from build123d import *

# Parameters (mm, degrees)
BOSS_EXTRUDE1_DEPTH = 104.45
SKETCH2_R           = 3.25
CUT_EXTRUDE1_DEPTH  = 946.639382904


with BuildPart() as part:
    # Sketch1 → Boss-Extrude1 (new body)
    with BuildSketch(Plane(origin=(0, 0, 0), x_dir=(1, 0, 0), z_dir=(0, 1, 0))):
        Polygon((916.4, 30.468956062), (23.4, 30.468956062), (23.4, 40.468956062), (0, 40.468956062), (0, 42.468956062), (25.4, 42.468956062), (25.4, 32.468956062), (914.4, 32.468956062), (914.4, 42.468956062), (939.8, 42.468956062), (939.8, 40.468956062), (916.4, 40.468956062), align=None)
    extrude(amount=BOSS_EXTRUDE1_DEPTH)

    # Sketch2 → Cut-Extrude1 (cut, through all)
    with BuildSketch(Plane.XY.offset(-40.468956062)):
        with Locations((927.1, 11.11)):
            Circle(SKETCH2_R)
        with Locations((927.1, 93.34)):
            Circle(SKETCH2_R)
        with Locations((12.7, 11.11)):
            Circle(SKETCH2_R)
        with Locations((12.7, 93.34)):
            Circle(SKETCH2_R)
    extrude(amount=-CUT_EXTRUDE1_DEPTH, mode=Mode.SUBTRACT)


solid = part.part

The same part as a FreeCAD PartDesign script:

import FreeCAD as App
import Part
import Sketcher
from FreeCAD import Vector

doc = App.newDocument("Part")
body = doc.addObject("PartDesign::Body", "Body")

sketch1 = body.newObject("Sketcher::SketchObject", "Sketch")
sketch1.AttachmentSupport = (doc.getObject("XZ_Plane"), [""])
sketch1.MapMode = "FlatFace"
sketch1.addGeometry([
    Part.LineSegment(Vector(23.4, -30.468956, 0), Vector(916.4, -30.468956, 0)),
    Part.LineSegment(Vector(916.4, -30.468956, 0), Vector(916.4, -40.468956, 0)),
    Part.LineSegment(Vector(916.4, -40.468956, 0), Vector(939.8, -40.468956, 0)),
    Part.LineSegment(Vector(939.8, -40.468956, 0), Vector(939.8, -42.468956, 0)),
    Part.LineSegment(Vector(939.8, -42.468956, 0), Vector(914.4, -42.468956, 0)),
    Part.LineSegment(Vector(914.4, -42.468956, 0), Vector(914.4, -32.468956, 0)),
    Part.LineSegment(Vector(914.4, -32.468956, 0), Vector(25.4, -32.468956, 0)),
    Part.LineSegment(Vector(25.4, -32.468956, 0), Vector(25.4, -42.468956, 0)),
    Part.LineSegment(Vector(25.4, -42.468956, 0), Vector(0, -42.468956, 0)),
    Part.LineSegment(Vector(0, -42.468956, 0), Vector(0, -40.468956, 0)),
    Part.LineSegment(Vector(0, -40.468956, 0), Vector(23.4, -40.468956, 0)),
    Part.LineSegment(Vector(23.4, -40.468956, 0), Vector(23.4, -30.468956, 0)),
], False)
sketch1.addConstraint([
    Sketcher.Constraint("Coincident", 0, 2, 1, 1),
    Sketcher.Constraint("Coincident", 1, 2, 2, 1),
    Sketcher.Constraint("Coincident", 2, 2, 3, 1),
    Sketcher.Constraint("Coincident", 3, 2, 4, 1),
    Sketcher.Constraint("Coincident", 4, 2, 5, 1),
    Sketcher.Constraint("Coincident", 5, 2, 6, 1),
    Sketcher.Constraint("Coincident", 6, 2, 7, 1),
    Sketcher.Constraint("Coincident", 7, 2, 8, 1),
    Sketcher.Constraint("Coincident", 8, 2, 9, 1),
    Sketcher.Constraint("Coincident", 9, 2, 10, 1),
    Sketcher.Constraint("Coincident", 10, 2, 11, 1),
    Sketcher.Constraint("Coincident", 11, 2, 0, 1),
    Sketcher.Constraint("Horizontal", 0),
    Sketcher.Constraint("Vertical", 1),
    Sketcher.Constraint("Horizontal", 2),
    Sketcher.Constraint("Vertical", 3),
    Sketcher.Constraint("Horizontal", 4),
    Sketcher.Constraint("Vertical", 5),
    Sketcher.Constraint("Horizontal", 6),
    Sketcher.Constraint("Vertical", 7),
    Sketcher.Constraint("Horizontal", 8),
    Sketcher.Constraint("Vertical", 9),
    Sketcher.Constraint("Horizontal", 10),
    Sketcher.Constraint("Vertical", 11),
    Sketcher.Constraint("PointOnObject", 8, 2, -2),
    Sketcher.Constraint("Horizontal", 4, 2, 7, 2),
    Sketcher.Constraint("Horizontal", 2, 2, 9, 2),
    Sketcher.Constraint("Equal", 4, 8),
    Sketcher.Constraint("Equal", 2, 10),
    Sketcher.Constraint("Equal", 1, 5),
    Sketcher.Constraint("DistanceX", 0, 1, 0, 2, 893.0),
    Sketcher.Constraint("DistanceX", 6, 2, 6, 1, 889.0),
    Sketcher.Constraint("DistanceY", 1, 2, 1, 1, 10.0),
    Sketcher.Constraint("DistanceY", 3, 2, 3, 1, 2.0),
    Sketcher.Constraint("DistanceX", 2, 1, 2, 2, 23.4),
    Sketcher.Constraint("DistanceY", 0, 2, -1, 1, 30.468956),
])
pad1 = body.newObject("PartDesign::Pad", "Pad")
pad1.Profile = sketch1
pad1.Length = 104.45
pad1.Reversed = True

sketch2 = body.newObject("Sketcher::SketchObject", "Sketch001")
sketch2.AttachmentSupport = (doc.getObject("XY_Plane"), [""])
sketch2.MapMode = "FlatFace"
sketch2.AttachmentOffset = App.Placement(Vector(0, 0, -40.468956), App.Rotation())
sketch2.addGeometry([
    Part.Circle(Vector(927.1, 11.11, 0), Vector(0, 0, 1), 3.25),
    Part.Circle(Vector(927.1, 93.34, 0), Vector(0, 0, 1), 3.25),
    Part.Circle(Vector(12.7, 11.11, 0), Vector(0, 0, 1), 3.25),
    Part.Circle(Vector(12.7, 93.34, 0), Vector(0, 0, 1), 3.25),
], False)
sketch2.addConstraint([
    Sketcher.Constraint("Equal", 0, 1),
    Sketcher.Constraint("Equal", 1, 2),
    Sketcher.Constraint("Equal", 2, 3),
    Sketcher.Constraint("Horizontal", 0, 3, 2, 3),
    Sketcher.Constraint("Horizontal", 1, 3, 3, 3),
    Sketcher.Constraint("Vertical", 0, 3, 1, 3),
    Sketcher.Constraint("Vertical", 2, 3, 3, 3),
    Sketcher.Constraint("Diameter", 0, 6.5),
    Sketcher.Constraint("DistanceX", -1, 1, 0, 3, 927.1),
    Sketcher.Constraint("DistanceX", -1, 1, 2, 3, 12.7),
    Sketcher.Constraint("DistanceY", -1, 1, 0, 3, 11.11),
    Sketcher.Constraint("DistanceY", -1, 1, 1, 3, 93.34),
])
pocket1 = body.newObject("PartDesign::Pocket", "Pocket")
pocket1.Profile = sketch2
pocket1.Type = "ThroughAll"

doc.recompute()
